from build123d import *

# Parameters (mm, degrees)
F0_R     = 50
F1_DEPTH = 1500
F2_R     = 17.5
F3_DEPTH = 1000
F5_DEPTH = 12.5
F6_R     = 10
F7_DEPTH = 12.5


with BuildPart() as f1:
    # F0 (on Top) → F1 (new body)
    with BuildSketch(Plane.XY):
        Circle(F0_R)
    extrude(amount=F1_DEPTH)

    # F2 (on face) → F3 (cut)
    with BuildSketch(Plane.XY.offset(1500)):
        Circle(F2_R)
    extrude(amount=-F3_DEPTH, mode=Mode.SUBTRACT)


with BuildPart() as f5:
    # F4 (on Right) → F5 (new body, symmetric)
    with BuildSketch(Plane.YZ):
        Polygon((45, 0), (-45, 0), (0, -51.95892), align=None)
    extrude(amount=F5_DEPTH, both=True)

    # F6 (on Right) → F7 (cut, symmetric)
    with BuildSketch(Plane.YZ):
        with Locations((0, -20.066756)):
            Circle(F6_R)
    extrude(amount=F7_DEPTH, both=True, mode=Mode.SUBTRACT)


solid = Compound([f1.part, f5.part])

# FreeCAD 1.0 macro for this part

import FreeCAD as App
import Part
import Sketcher

V = App.Vector

doc = App.newDocument("Part")
body = doc.addObject("PartDesign::Body", "Body")

sketch1 = body.newObject("Sketcher::SketchObject", "Sketch")
sketch1.AttachmentSupport = (doc.getObject("XY_Plane"), [""])
sketch1.MapMode = "FlatFace"
sketch1.addGeometry(Part.Circle(V(0, 0, 0), V(0, 0, 1), 50), False)
sketch1.addConstraint([
    Sketcher.Constraint("Coincident", 0, 3, -1, 1),
    Sketcher.Constraint("Diameter", 0, 100.0),
])
pad1 = body.newObject("PartDesign::Pad", "Pad")
pad1.Profile = sketch1
pad1.Length = 1500

sketch2 = body.newObject("Sketcher::SketchObject", "Sketch001")
sketch2.AttachmentSupport = (doc.getObject("XY_Plane"), [""])
sketch2.MapMode = "FlatFace"
sketch2.AttachmentOffset = App.Placement(V(0, 0, 1500), App.Rotation())
sketch2.addGeometry(Part.Circle(V(0, 0, 0), V(0, 0, 1), 18), False)
sketch2.addConstraint([
    Sketcher.Constraint("Coincident", 0, 3, -1, 1),
    Sketcher.Constraint("Diameter", 0, 35.0),
])
pocket1 = body.newObject("PartDesign::Pocket", "Pocket")
pocket1.Profile = sketch2
pocket1.Length = 1000
body2 = doc.addObject("PartDesign::Body", "Body001")

sketch3 = body2.newObject("Sketcher::SketchObject", "Sketch002")
sketch3.AttachmentSupport = (doc.getObject("YZ_Plane001"), [""])
sketch3.MapMode = "FlatFace"
sketch3.addGeometry([
    Part.LineSegment(V(45, 0, 0), V(-45, 0, 0)),
    Part.LineSegment(V(-45, 0, 0), V(0, -52, 0)),
    Part.LineSegment(V(0, -52, 0), V(45, 0, 0)),
], False)
sketch3.addConstraint([
    Sketcher.Constraint("Coincident", 0, 2, 1, 1),
    Sketcher.Constraint("Coincident", 1, 2, 2, 1),
    Sketcher.Constraint("Coincident", 2, 2, 0, 1),
    Sketcher.Constraint("Horizontal", 0),
    Sketcher.Constraint("Symmetric", 0, 2, 2, 2, -1, 1),
    Sketcher.Constraint("PointOnObject", 1, 2, -2),
    Sketcher.Constraint("DistanceX", 0, 2, 0, 1, 90.0),
    Sketcher.Constraint("DistanceY", 1, 2, -1, 1, 51.95892),
])
pad2 = body2.newObject("PartDesign::Pad", "Pad001")
pad2.Profile = sketch3
pad2.Length = 25
pad2.Midplane = True

sketch4 = body2.newObject("Sketcher::SketchObject", "Sketch003")
sketch4.AttachmentSupport = (doc.getObject("YZ_Plane001"), [""])
sketch4.MapMode = "FlatFace"
sketch4.addGeometry(Part.Circle(V(0, -20, 0), V(0, 0, 1), 10), False)
sketch4.addConstraint([
    Sketcher.Constraint("PointOnObject", 0, 3, -2),
    Sketcher.Constraint("Diameter", 0, 20.0),
    Sketcher.Constraint("DistanceY", 0, 3, -1, 1, 20.066756),
])
pocket2 = body2.newObject("PartDesign::Pocket", "Pocket001")
pocket2.Profile = sketch4
pocket2.Length = 25
pocket2.Midplane = True

doc.recompute()
